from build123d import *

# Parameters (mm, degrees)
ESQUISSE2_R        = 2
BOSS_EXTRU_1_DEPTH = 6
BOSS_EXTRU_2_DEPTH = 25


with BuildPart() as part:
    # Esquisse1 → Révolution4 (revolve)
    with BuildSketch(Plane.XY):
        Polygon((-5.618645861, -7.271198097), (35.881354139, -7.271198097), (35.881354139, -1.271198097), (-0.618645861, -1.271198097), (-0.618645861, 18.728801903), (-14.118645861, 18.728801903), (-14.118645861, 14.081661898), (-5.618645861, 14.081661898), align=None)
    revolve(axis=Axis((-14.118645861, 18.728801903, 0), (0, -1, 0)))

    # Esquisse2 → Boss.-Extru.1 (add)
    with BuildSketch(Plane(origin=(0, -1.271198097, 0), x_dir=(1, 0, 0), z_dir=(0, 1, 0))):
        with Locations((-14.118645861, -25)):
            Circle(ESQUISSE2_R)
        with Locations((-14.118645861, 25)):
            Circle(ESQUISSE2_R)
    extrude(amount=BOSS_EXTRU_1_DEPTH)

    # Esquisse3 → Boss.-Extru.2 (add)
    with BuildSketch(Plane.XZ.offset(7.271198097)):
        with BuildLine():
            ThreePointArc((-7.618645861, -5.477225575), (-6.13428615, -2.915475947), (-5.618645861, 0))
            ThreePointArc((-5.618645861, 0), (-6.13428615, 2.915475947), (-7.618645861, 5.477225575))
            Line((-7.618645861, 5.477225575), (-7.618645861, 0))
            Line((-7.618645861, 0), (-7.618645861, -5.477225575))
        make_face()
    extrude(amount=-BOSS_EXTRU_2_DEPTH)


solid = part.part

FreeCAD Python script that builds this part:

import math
import FreeCAD as App
import Part
import Sketcher


def add_polygon(sketch, points):
    """Adds a closed chain of lines whose ends are joined by coincident constraints."""
    first, n = sketch.GeometryCount, len(points)
    for a, b in zip(points, points[1:] + points[:1]):
        sketch.addGeometry(Part.LineSegment(App.Vector(*a, 0), App.Vector(*b, 0)), False)
    for i in range(n):
        sketch.addConstraint(Sketcher.Constraint("Coincident", first + i, 2, first + (i + 1) % n, 1))

doc = App.newDocument("Part")
params = doc.addObject("Spreadsheet::Sheet", "Params")
for row, (alias, value) in enumerate([
    ("sketch1_height", "6 mm"),
    ("sketch1_height2", "20 mm"),
    ("sketch1_width", "41.5 mm"),
    ("sketch1_width2", "36.5 mm"),
    ("sketch1_width3", "13.5 mm"),
    ("revolution_angle", "360 deg"),
    ("sketch2_diameter", "4 mm"),
    ("pad1_length", "6 mm"),
    ("sketch3_radius", "8.5 mm"),
    ("pad2_length", "25 mm"),
], start=1):
    params.set(f"A{row}", alias)
    params.set(f"B{row}", "=" + value)
    params.setAlias(f"B{row}", alias)

body = doc.addObject("PartDesign::Body", "Body")

# Sketch on XY plane
sketch1 = body.newObject("Sketcher::SketchObject", "Sketch")
sketch1.AttachmentSupport = (doc.getObject("XY_Plane"), [""])
sketch1.MapMode = "FlatFace"
add_polygon(sketch1, [(-5.6, -7.3), (35.9, -7.3), (35.9, -1.3), (-0.6, -1.3), (-0.6, 18.7), (-14.1, 18.7), (-14.1, 14.1), (-5.6, 14.1)])  # lines 0-7
sketch1.addGeometry(Part.LineSegment(App.Vector(-14.1, 18.7, 0), App.Vector(-14.1, -7.3, 0)), True)  # axis
sketch1.addConstraint(Sketcher.Constraint("Horizontal", 0))
sketch1.addConstraint(Sketcher.Constraint("Vertical", 1))
sketch1.addConstraint(Sketcher.Constraint("Horizontal", 2))
sketch1.addConstraint(Sketcher.Constraint("Vertical", 3))
sketch1.addConstraint(Sketcher.Constraint("Horizontal", 4))
sketch1.addConstraint(Sketcher.Constraint("Vertical", 5))
sketch1.addConstraint(Sketcher.Constraint("Horizontal", 6))
sketch1.addConstraint(Sketcher.Constraint("Vertical", 7))
sketch1.addConstraint(Sketcher.Constraint("Vertical", 8))
sketch1.addConstraint(Sketcher.Constraint("Coincident", 8, 1, 4, 2))
sketch1.addConstraint(Sketcher.Constraint("Horizontal", 7, 2, 8, 2))
sketch1.addConstraint(Sketcher.Constraint("DistanceY", 1, 1, 1, 2, 6.0))
sketch1.addConstraint(Sketcher.Constraint("DistanceY", 3, 1, 3, 2, 20.0))
sketch1.addConstraint(Sketcher.Constraint("DistanceX", 0, 1, 0, 2, 41.5))
sketch1.addConstraint(Sketcher.Constraint("DistanceX", 2, 2, 2, 1, 36.5))
sketch1.addConstraint(Sketcher.Constraint("DistanceX", 4, 2, 4, 1, 13.5))
sketch1.addConstraint(Sketcher.Constraint("DistanceY", 5, 2, 5, 1, 4.64714))
sketch1.addConstraint(Sketcher.Constraint("DistanceY", 0, 2, -1, 1, 7.271198))
sketch1.addConstraint(Sketcher.Constraint("DistanceX", -1, 1, 0, 2, 35.881354))
sketch1.setExpression("Constraints[19]", "Params.sketch1_height")
sketch1.setExpression("Constraints[20]", "Params.sketch1_height2")
sketch1.setExpression("Constraints[21]", "Params.sketch1_width")
sketch1.setExpression("Constraints[22]", "Params.sketch1_width2")
sketch1.setExpression("Constraints[23]", "Params.sketch1_width3")
revolution = body.newObject("PartDesign::Revolution", "Revolution")
revolution.Profile = sketch1
revolution.ReferenceAxis = (sketch1, ["Axis0"])
revolution.setExpression("Angle", "Params.revolution_angle")

# Sketch on XZ plane
sketch2 = body.newObject("Sketcher::SketchObject", "Sketch001")
sketch2.AttachmentSupport = (doc.getObject("XZ_Plane"), [""])
sketch2.MapMode = "FlatFace"
sketch2.AttachmentOffset = App.Placement(App.Vector(0, 0, 1.271198), App.Rotation())
sketch2.addGeometry(Part.Circle(App.Vector(-14.1, 25, 0), App.Vector(0, 0, 1), 2), False)
sketch2.addGeometry(Part.Circle(App.Vector(-14.1, -25, 0), App.Vector(0, 0, 1), 2), False)
sketch2.addConstraint(Sketcher.Constraint("Equal", 0, 1))
sketch2.addConstraint(Sketcher.Constraint("Symmetric", 0, 3, 1, 3, -1))
sketch2.addConstraint(Sketcher.Constraint("Diameter", 0, 4.0))
sketch2.addConstraint(Sketcher.Constraint("DistanceY", -1, 1, 0, 3, 25.0))
sketch2.addConstraint(Sketcher.Constraint("DistanceX", 0, 3, -1, 1, 14.118646))
sketch2.setExpression("Constraints[2]", "Params.sketch2_diameter")
pad1 = body.newObject("PartDesign::Pad", "Pad")
pad1.Profile = sketch2
pad1.setExpression("Length", "Params.pad1_length")
pad1.Reversed = True

# Sketch on XZ plane
sketch3 = body.newObject("Sketcher::SketchObject", "Sketch002")
sketch3.AttachmentSupport = (doc.getObject("XZ_Plane"), [""])
sketch3.MapMode = "FlatFace"
sketch3.AttachmentOffset = App.Placement(App.Vector(0, 0, 7.271198), App.Rotation())
sketch3.addGeometry(Part.ArcOfCircle(Part.Circle(App.Vector(-14, 0, 0), App.Vector(0, 0, 1), 9), math.radians(-40), math.radians(0)), False)
sketch3.addGeometry(Part.ArcOfCircle(Part.Circle(App.Vector(-14, 0, 0), App.Vector(0, 0, 1), 9), math.radians(0), math.radians(40)), False)
sketch3.addGeometry(Part.LineSegment(App.Vector(-8, 5, 0), App.Vector(-8, -5, 0)), False)
sketch3.addConstraint(Sketcher.Constraint("Tangent", 0, 2, 1, 1))
sketch3.addConstraint(Sketcher.Constraint("Coincident", 1, 2, 2, 1))
sketch3.addConstraint(Sketcher.Constraint("Coincident", 2, 2, 0, 1))
sketch3.addConstraint(Sketcher.Constraint("Vertical", 2))
sketch3.addConstraint(Sketcher.Constraint("Equal", 0, 1))
sketch3.addConstraint(Sketcher.Constraint("PointOnObject", 0, 3, -1))
sketch3.addConstraint(Sketcher.Constraint("PointOnObject", 0, 2, -1))
sketch3.addConstraint(Sketcher.Constraint("Radius", 0, 8.5))
sketch3.addConstraint(Sketcher.Constraint("DistanceX", 1, 2, 0, 2, 2.0))
sketch3.addConstraint(Sketcher.Constraint("DistanceX", 0, 3, -1, 1, 14.118646))
sketch3.setExpression("Constraints[7]", "Params.sketch3_radius")
pad2 = body.newObject("PartDesign::Pad", "Pad001")
pad2.Profile = sketch3
pad2.setExpression("Length", "Params.pad2_length")
pad2.Reversed = True

doc.recompute()
